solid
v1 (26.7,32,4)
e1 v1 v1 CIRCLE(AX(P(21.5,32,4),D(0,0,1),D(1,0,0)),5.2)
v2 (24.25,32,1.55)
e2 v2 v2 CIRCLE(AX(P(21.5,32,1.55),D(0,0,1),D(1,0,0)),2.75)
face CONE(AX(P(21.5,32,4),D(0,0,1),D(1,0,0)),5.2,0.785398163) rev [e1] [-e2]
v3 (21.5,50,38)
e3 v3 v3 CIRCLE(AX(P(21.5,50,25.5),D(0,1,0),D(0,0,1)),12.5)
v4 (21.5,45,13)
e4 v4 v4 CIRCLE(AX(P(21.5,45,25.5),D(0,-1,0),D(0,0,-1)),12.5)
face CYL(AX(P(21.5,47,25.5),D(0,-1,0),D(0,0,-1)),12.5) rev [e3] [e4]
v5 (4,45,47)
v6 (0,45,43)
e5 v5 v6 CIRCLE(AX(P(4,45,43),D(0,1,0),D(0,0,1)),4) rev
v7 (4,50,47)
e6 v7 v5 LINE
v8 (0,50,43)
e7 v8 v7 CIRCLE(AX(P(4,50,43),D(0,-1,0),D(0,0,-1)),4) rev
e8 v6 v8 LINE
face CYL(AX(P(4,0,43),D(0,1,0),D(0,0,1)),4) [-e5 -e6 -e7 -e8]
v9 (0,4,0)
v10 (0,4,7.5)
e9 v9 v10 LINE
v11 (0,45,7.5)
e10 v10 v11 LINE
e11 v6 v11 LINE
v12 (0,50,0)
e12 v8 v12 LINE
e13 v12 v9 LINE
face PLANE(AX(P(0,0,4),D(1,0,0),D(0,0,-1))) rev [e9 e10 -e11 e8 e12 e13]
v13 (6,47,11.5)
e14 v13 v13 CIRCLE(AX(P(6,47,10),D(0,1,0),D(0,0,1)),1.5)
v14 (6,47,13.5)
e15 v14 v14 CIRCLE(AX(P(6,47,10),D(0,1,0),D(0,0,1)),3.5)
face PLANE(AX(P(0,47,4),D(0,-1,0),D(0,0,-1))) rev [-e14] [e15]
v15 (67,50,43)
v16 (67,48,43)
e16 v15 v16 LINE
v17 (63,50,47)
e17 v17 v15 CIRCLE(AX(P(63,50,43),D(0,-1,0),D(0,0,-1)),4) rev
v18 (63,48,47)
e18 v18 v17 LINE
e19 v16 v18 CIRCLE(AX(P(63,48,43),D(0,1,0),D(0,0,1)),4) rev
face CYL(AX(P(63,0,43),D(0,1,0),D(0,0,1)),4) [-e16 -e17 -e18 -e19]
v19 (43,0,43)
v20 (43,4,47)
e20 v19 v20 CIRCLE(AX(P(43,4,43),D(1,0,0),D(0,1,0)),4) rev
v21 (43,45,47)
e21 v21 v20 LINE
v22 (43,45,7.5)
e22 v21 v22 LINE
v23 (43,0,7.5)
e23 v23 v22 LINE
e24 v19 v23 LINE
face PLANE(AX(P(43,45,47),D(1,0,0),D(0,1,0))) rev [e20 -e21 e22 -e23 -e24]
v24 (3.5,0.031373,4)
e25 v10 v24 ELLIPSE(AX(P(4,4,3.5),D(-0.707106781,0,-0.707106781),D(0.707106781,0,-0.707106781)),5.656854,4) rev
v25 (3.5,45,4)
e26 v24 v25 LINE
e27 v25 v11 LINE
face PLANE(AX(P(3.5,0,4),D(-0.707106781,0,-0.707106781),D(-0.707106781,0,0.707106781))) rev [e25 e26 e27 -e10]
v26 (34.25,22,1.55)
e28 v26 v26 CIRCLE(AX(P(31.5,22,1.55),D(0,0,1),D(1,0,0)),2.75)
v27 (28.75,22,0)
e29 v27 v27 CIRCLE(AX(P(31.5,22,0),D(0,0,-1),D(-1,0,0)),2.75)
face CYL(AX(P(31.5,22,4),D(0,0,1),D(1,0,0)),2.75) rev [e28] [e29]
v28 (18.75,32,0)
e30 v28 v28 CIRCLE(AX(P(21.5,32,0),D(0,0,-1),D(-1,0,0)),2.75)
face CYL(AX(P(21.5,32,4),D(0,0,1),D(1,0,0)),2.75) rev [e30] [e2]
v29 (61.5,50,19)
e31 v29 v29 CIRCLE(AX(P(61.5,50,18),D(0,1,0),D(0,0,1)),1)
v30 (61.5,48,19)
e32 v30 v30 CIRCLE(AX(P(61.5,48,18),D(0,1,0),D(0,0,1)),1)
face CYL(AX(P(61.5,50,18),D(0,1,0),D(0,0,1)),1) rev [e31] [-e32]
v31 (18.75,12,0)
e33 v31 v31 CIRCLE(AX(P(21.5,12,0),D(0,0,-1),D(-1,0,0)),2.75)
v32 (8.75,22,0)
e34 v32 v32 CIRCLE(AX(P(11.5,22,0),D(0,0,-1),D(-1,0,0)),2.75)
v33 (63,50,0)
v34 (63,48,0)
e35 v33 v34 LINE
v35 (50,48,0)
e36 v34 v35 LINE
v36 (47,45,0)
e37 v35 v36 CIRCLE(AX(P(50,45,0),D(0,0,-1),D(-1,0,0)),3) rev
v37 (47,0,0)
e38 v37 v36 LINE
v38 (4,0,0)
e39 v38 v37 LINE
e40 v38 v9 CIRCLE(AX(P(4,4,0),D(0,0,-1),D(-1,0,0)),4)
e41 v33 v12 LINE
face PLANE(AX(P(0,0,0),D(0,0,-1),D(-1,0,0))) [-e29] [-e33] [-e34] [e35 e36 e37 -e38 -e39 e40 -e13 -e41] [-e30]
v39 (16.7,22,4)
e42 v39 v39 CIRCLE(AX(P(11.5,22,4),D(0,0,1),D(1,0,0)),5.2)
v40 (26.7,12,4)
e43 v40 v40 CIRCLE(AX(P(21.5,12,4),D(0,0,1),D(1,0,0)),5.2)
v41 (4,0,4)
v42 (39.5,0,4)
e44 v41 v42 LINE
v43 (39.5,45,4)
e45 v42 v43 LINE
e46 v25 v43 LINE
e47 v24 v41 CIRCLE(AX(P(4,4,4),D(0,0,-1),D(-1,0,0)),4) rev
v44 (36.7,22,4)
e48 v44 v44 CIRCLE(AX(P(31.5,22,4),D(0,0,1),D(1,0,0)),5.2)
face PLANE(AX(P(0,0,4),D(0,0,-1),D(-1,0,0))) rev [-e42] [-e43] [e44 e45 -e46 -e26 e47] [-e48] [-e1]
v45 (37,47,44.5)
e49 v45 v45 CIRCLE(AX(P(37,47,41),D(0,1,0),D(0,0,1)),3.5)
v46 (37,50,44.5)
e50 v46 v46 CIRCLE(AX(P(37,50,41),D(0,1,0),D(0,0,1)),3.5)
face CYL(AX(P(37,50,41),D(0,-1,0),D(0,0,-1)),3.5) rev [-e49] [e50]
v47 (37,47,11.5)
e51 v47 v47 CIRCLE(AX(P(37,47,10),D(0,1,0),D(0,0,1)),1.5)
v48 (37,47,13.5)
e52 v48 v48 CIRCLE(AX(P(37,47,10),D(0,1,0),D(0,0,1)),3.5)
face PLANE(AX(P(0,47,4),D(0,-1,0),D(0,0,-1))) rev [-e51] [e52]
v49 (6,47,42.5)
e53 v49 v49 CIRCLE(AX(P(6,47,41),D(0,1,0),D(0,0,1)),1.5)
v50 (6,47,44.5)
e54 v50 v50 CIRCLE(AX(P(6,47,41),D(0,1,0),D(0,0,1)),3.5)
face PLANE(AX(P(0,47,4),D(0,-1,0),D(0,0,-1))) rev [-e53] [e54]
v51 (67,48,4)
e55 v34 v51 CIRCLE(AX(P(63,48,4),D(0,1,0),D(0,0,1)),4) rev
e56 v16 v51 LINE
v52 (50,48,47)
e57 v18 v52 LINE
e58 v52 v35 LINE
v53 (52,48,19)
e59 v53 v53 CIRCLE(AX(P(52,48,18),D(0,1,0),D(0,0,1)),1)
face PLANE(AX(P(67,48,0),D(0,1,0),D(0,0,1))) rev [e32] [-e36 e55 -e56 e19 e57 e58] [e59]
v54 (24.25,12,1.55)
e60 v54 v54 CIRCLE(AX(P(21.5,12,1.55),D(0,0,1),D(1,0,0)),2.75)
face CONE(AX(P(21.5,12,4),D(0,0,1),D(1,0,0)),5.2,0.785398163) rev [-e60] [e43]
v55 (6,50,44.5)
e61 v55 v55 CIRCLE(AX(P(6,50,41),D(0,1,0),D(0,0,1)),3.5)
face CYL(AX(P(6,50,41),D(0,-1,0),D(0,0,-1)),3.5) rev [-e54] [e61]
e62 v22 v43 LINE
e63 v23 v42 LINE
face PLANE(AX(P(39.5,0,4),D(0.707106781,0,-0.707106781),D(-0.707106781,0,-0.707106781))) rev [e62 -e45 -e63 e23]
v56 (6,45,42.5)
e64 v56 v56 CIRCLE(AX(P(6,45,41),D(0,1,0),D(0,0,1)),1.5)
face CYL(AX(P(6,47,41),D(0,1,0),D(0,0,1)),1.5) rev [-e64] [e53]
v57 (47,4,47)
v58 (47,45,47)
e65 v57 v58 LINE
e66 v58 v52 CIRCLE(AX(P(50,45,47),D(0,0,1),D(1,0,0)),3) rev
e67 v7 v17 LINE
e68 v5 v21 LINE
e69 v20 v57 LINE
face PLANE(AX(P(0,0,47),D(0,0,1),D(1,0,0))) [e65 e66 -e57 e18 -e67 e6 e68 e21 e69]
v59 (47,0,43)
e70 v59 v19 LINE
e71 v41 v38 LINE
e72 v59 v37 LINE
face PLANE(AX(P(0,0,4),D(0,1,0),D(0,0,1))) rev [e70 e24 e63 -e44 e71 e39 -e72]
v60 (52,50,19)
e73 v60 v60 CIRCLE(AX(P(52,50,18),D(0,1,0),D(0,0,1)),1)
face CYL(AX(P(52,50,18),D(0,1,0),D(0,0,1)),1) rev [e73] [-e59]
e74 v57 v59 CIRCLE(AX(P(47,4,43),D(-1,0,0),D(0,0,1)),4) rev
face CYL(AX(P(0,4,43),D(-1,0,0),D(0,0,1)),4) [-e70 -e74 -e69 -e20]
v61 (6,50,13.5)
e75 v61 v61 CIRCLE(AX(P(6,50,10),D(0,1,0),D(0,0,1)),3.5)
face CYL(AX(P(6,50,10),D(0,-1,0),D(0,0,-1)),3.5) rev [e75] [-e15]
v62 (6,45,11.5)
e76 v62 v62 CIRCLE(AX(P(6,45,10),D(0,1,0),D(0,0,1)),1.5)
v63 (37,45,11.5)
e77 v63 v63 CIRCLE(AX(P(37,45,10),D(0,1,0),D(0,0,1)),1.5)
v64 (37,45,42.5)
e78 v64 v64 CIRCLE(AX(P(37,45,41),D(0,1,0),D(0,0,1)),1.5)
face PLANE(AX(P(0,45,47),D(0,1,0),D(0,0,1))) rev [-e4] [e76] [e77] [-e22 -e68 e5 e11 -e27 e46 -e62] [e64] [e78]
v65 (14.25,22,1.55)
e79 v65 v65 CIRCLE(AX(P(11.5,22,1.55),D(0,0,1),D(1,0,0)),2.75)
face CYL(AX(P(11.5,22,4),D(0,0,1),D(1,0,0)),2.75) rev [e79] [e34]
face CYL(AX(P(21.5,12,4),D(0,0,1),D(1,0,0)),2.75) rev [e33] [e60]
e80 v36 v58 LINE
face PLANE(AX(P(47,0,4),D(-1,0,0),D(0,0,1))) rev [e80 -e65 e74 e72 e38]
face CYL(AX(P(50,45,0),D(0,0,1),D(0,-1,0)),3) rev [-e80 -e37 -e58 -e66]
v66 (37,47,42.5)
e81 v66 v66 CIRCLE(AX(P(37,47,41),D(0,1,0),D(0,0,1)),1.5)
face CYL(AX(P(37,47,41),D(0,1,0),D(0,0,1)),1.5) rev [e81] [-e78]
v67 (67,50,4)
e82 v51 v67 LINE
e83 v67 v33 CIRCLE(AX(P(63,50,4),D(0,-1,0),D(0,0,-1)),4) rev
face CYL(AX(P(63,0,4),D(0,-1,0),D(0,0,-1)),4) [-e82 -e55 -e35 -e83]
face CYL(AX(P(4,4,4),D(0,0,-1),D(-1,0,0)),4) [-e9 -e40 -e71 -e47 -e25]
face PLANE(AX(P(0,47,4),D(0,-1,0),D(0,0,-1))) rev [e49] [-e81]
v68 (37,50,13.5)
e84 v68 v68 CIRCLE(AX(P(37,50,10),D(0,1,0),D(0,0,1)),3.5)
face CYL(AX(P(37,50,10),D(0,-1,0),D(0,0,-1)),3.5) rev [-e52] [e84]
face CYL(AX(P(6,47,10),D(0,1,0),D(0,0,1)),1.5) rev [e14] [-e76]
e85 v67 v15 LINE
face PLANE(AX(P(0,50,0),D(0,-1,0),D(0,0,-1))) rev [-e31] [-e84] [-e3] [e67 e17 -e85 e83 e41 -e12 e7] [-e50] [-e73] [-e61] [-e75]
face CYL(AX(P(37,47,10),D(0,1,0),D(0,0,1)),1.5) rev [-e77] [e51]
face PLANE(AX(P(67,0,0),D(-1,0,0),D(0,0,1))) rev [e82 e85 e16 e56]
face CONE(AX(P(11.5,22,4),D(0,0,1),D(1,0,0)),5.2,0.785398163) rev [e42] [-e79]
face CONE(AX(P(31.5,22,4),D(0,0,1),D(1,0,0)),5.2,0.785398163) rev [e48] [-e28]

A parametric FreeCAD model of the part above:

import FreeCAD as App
import Part
import Sketcher
Q = App.Units.Quantity


def edges_at(feature, points):
    """Names of the edges that pass closest to the given points."""
    edges = feature.Shape.Edges
    near = lambda p: min(range(len(edges)), key=lambda i: edges[i].distToShape(Part.Vertex(*p))[0])
    return sorted({f"Edge{near(p) + 1}" for p in points})

doc = App.newDocument("Part")
body = doc.addObject("PartDesign::Body", "Body")

sketch1 = doc.addObject("Sketcher::SketchObject", "Sketch")
body.addObject(sketch1)
sketch1.AttachmentSupport = (doc.XY_Plane, [""])
sketch1.MapMode = "FlatFace"
sketch1.addGeometry([
    Part.LineSegment(App.Vector(0, 47, 0), App.Vector(0, 0, 0)),
    Part.LineSegment(App.Vector(0, 0, 0), App.Vector(47, 0, 0)),
    Part.LineSegment(App.Vector(47, 0, 0), App.Vector(47, 47, 0)),
    Part.LineSegment(App.Vector(47, 47, 0), App.Vector(0, 47, 0)),
], False)
sketch1.addConstraint([
    Sketcher.Constraint("Coincident", 0, 2, 1, 1),
    Sketcher.Constraint("Coincident", 1, 2, 2, 1),
    Sketcher.Constraint("Coincident", 2, 2, 3, 1),
    Sketcher.Constraint("Coincident", 3, 2, 0, 1),
    Sketcher.Constraint("Vertical", 0),
    Sketcher.Constraint("Horizontal", 1),
    Sketcher.Constraint("Vertical", 2),
    Sketcher.Constraint("Horizontal", 3),
    Sketcher.Constraint("Coincident", 0, 2, -1, 1),
    Sketcher.Constraint("Equal", 3, 0),
    Sketcher.Constraint("DistanceX", 1, 1, 1, 2, Q("47 mm")),
])
pad1 = doc.addObject("PartDesign::Pad", "Pad")
body.addObject(pad1)
pad1.Profile = sketch1
pad1.Length = 4

sketch2 = doc.addObject("Sketcher::SketchObject", "Sketch001")
body.addObject(sketch2)
sketch2.AttachmentSupport = (doc.XY_Plane, [""])
sketch2.MapMode = "FlatFace"
sketch2.AttachmentOffset = App.Placement(App.Vector(0, 0, 4), App.Rotation())
sketch2.addGeometry([
    Part.LineSegment(App.Vector(0, 47, 0), App.Vector(0, 45, 0)),
    Part.LineSegment(App.Vector(0, 45, 0), App.Vector(47, 45, 0)),
    Part.LineSegment(App.Vector(47, 45, 0), App.Vector(47, 47, 0)),
    Part.LineSegment(App.Vector(47, 47, 0), App.Vector(0, 47, 0)),
], False)
sketch2.addConstraint([
    Sketcher.Constraint("Coincident", 0, 2, 1, 1),
    Sketcher.Constraint("Coincident", 1, 2, 2, 1),
    Sketcher.Constraint("Coincident", 2, 2, 3, 1),
    Sketcher.Constraint("Coincident", 3, 2, 0, 1),
    Sketcher.Constraint("Vertical", 0),
    Sketcher.Constraint("Horizontal", 1),
    Sketcher.Constraint("Vertical", 2),
    Sketcher.Constraint("Horizontal", 3),
    Sketcher.Constraint("PointOnObject", 0, 2, -2),
    Sketcher.Constraint("DistanceX", 1, 1, 1, 2, Q("47 mm")),
    Sketcher.Constraint("DistanceY", 0, 2, 0, 1, Q("2 mm")),
    Sketcher.Constraint("DistanceY", -1, 1, 0, 2, Q("45 mm")),
])
pad2 = doc.addObject("PartDesign::Pad", "Pad001")
body.addObject(pad2)
pad2.Profile = sketch2
pad2.Length = 43

sketch3 = doc.addObject("Sketcher::SketchObject", "Sketch002")
body.addObject(sketch3)
sketch3.AttachmentSupport = (doc.XY_Plane, [""])
sketch3.MapMode = "FlatFace"
sketch3.AttachmentOffset = App.Placement(App.Vector(0, 0, 4), App.Rotation())
sketch3.addGeometry([
    Part.LineSegment(App.Vector(43, 45, 0), App.Vector(43, 0, 0)),
    Part.LineSegment(App.Vector(43, 0, 0), App.Vector(47, 0, 0)),
    Part.LineSegment(App.Vector(47, 0, 0), App.Vector(47, 45, 0)),
    Part.LineSegment(App.Vector(47, 45, 0), App.Vector(43, 45, 0)),
], False)
sketch3.addConstraint([
    Sketcher.Constraint("Coincident", 0, 2, 1, 1),
    Sketcher.Constraint("Coincident", 1, 2, 2, 1),
    Sketcher.Constraint("Coincident", 2, 2, 3, 1),
    Sketcher.Constraint("Coincident", 3, 2, 0, 1),
    Sketcher.Constraint("Vertical", 0),
    Sketcher.Constraint("Horizontal", 1),
    Sketcher.Constraint("Vertical", 2),
    Sketcher.Constraint("Horizontal", 3),
    Sketcher.Constraint("PointOnObject", 0, 2, -1),
    Sketcher.Constraint("DistanceX", 1, 1, 1, 2, Q("4 mm")),
    Sketcher.Constraint("DistanceY", 0, 2, 0, 1, Q("45 mm")),
    Sketcher.Constraint("DistanceX", -1, 1, 0, 2, Q("43 mm")),
])
pad3 = doc.addObject("PartDesign::Pad", "Pad002")
body.addObject(pad3)
pad3.Profile = sketch3
pad3.Length = 43

sketch4 = doc.addObject("Sketcher::SketchObject", "Sketch003")
body.addObject(sketch4)
sketch4.AttachmentSupport = (doc.XZ_Plane, [""])
sketch4.MapMode = "FlatFace"
sketch4.AttachmentOffset = App.Placement(App.Vector(0, 0, -45), App.Rotation())
sketch4.addGeometry(Part.Circle(App.Vector(22, 26, 0), App.Vector(0, 0, 1), 12), False)
sketch4.addConstraint([
    Sketcher.Constraint("Diameter", 0, Q("25 mm")),
    Sketcher.Constraint("DistanceX", -1, 1, 0, 3, Q("21.5 mm")),
    Sketcher.Constraint("DistanceY", -1, 1, 0, 3, Q("25.5 mm")),
])
pocket1 = doc.addObject("PartDesign::Pocket", "Pocket")
body.addObject(pocket1)
pocket1.Profile = sketch4
pocket1.Type = "ThroughAll"

sketch5 = doc.addObject("Sketcher::SketchObject", "Sketch004")
body.addObject(sketch5)
sketch5.AttachmentSupport = (doc.XZ_Plane, [""])
sketch5.MapMode = "FlatFace"
sketch5.AttachmentOffset = App.Placement(App.Vector(0, 0, -47), App.Rotation())
sketch5.addGeometry([
    Part.Circle(App.Vector(6, 10, 0), App.Vector(0, 0, 1), 1.5),
    Part.Circle(App.Vector(37, 10, 0), App.Vector(0, 0, 1), 1.5),
    Part.Circle(App.Vector(37, 41, 0), App.Vector(0, 0, 1), 1.5),
    Part.Circle(App.Vector(6, 41, 0), App.Vector(0, 0, 1), 1.5),
], False)
sketch5.addConstraint([
    Sketcher.Constraint("Equal", 0, 1),
    Sketcher.Constraint("Equal", 1, 2),
    Sketcher.Constraint("Equal", 2, 3),
    Sketcher.Constraint("Horizontal", 0, 3, 1, 3),
    Sketcher.Constraint("Horizontal", 2, 3, 3, 3),
    Sketcher.Constraint("Vertical", 1, 3, 2, 3),
    Sketcher.Constraint("Vertical", 0, 3, 3, 3),
    Sketcher.Constraint("Diameter", 0, Q("3 mm")),
    Sketcher.Constraint("DistanceX", -1, 1, 0, 3, Q("6 mm")),
    Sketcher.Constraint("DistanceY", -1, 1, 0, 3, Q("10 mm")),
    Sketcher.Constraint("DistanceX", -1, 1, 1, 3, Q("37 mm")),
    Sketcher.Constraint("DistanceY", -1, 1, 2, 3, Q("41 mm")),
])
doc.recompute()
hole = doc.addObject("PartDesign::Hole", "Hole")
body.addObject(hole)
hole.Profile = sketch5
hole.ThreadType = "None"
hole.Diameter = 3
hole.DepthType = "ThroughAll"
hole.Reversed = True

sketch6 = doc.addObject("Sketcher::SketchObject", "Sketch005")
body.addObject(sketch6)
sketch6.AttachmentSupport = (doc.YZ_Plane, [""])
sketch6.MapMode = "FlatFace"
sketch6.AttachmentOffset = App.Placement(App.Vector(0, 0, 11.5), App.Rotation())
sketch6.addGeometry([
    Part.LineSegment(App.Vector(22, 0, 0), App.Vector(22, 4, 0)),
    Part.LineSegment(App.Vector(22, 4, 0), App.Vector(16.8, 4, 0)),
    Part.LineSegment(App.Vector(16.8, 4, 0), App.Vector(19.2, 1.6, 0)),
    Part.LineSegment(App.Vector(19.2, 1.6, 0), App.Vector(19.2, 0, 0)),
    Part.LineSegment(App.Vector(19.2, 0, 0), App.Vector(22, 0, 0)),
], False)
sketch6.addGeometry(Part.LineSegment(App.Vector(22, 4, 0), App.Vector(22, 0, 0)), True)
sketch6.addConstraint([
    Sketcher.Constraint("Coincident", 0, 2, 1, 1),
    Sketcher.Constraint("Coincident", 1, 2, 2, 1),
    Sketcher.Constraint("Coincident", 2, 2, 3, 1),
    Sketcher.Constraint("Coincident", 3, 2, 4, 1),
    Sketcher.Constraint("Coincident", 4, 2, 0, 1),
    Sketcher.Constraint("Vertical", 0),
    Sketcher.Constraint("Horizontal", 1),
    Sketcher.Constraint("Vertical", 3),
    Sketcher.Constraint("Horizontal", 4),
    Sketcher.Constraint("Vertical", 5),
    Sketcher.Constraint("Coincident", 5, 1, 0, 2),
    Sketcher.Constraint("PointOnObject", 3, 2, -1),
    Sketcher.Constraint("PointOnObject", 5, 2, -1),
    Sketcher.Constraint("DistanceY", 0, 1, 0, 2, Q("4 mm")),
    Sketcher.Constraint("Angle", 2, Q("-45 deg")),
    Sketcher.Constraint("DistanceX", 1, 2, 1, 1, Q("5.2 mm")),
    Sketcher.Constraint("DistanceX", -1, 1, 0, 2, Q("22 mm")),
    Sketcher.Constraint("DistanceX", 4, 1, 4, 2, Q("2.75 mm")),
])
groove = doc.addObject("PartDesign::Groove", "Groove")
body.addObject(groove)
groove.Profile = sketch6
groove.ReferenceAxis = (sketch6, ["Axis0"])
groove.Angle = 360
doc.recompute()

datumline = doc.addObject("PartDesign::Line", "DatumLine")
body.addObject(datumline)
datumline.Placement = App.Placement(App.Vector(0, 0, 0), App.Rotation(App.Vector(0, 0, 1), App.Vector(0.707106781, 0.707106781, 0)))
linearpattern = doc.addObject("PartDesign::LinearPattern", "LinearPattern")
body.addObject(linearpattern)
linearpattern.Originals = [groove]
linearpattern.Direction = (datumline, [""])
linearpattern.Mode = "offset"
linearpattern.Offset = 14.142136
linearpattern.Occurrences = 2
body.Tip = linearpattern
doc.recompute()

linearpattern2 = doc.addObject("PartDesign::LinearPattern", "LinearPattern001")
body.addObject(linearpattern2)
linearpattern2.Originals = [groove]
linearpattern2.Direction = (doc.X_Axis, [""])
linearpattern2.Mode = "offset"
linearpattern2.Offset = 20
linearpattern2.Occurrences = 2
body.Tip = linearpattern2
doc.recompute()

datumline2 = doc.addObject("PartDesign::Line", "DatumLine001")
body.addObject(datumline2)
datumline2.Placement = App.Placement(App.Vector(0, 0, 0), App.Rotation(App.Vector(0, 0, 1), App.Vector(0.707106781, -0.707106781, 0)))
linearpattern3 = doc.addObject("PartDesign::LinearPattern", "LinearPattern002")
body.addObject(linearpattern3)
linearpattern3.Originals = [groove]
linearpattern3.Direction = (datumline2, [""])
linearpattern3.Mode = "offset"
linearpattern3.Offset = 14.142136
linearpattern3.Occurrences = 2
body.Tip = linearpattern3

sketch7 = doc.addObject("Sketcher::SketchObject", "Sketch006")
body.addObject(sketch7)
sketch7.AttachmentSupport = (doc.XZ_Plane, [""])
sketch7.MapMode = "FlatFace"
sketch7.AttachmentOffset = App.Placement(App.Vector(0, 0, -45), App.Rotation())
sketch7.addGeometry([
    Part.LineSegment(App.Vector(39.5, 4, 0), App.Vector(43, 4, 0)),
    Part.LineSegment(App.Vector(43, 4, 0), App.Vector(43, 7.5, 0)),
    Part.LineSegment(App.Vector(43, 7.5, 0), App.Vector(39.5, 4, 0)),
], False)
sketch7.addConstraint([
    Sketcher.Constraint("Coincident", 0, 2, 1, 1),
    Sketcher.Constraint("Coincident", 1, 2, 2, 1),
    Sketcher.Constraint("Coincident", 2, 2, 0, 1),
    Sketcher.Constraint("Horizontal", 0),
    Sketcher.Constraint("Vertical", 1),
    Sketcher.Constraint("Equal", 0, 1),
    Sketcher.Constraint("DistanceX", 0, 1, 0, 2, Q("3.5 mm")),
    Sketcher.Constraint("DistanceX", -1, 1, 0, 2, Q("43 mm")),
    Sketcher.Constraint("DistanceY", -1, 1, 0, 2, Q("4 mm")),
])
pad4 = doc.addObject("PartDesign::Pad", "Pad003")
body.addObject(pad4)
pad4.Profile = sketch7
pad4.Length = 45

sketch8 = doc.addObject("Sketcher::SketchObject", "Sketch007")
body.addObject(sketch8)
sketch8.AttachmentSupport = (doc.XZ_Plane, [""])
sketch8.MapMode = "FlatFace"
sketch8.AttachmentOffset = App.Placement(App.Vector(0, 0, -45), App.Rotation())
sketch8.addGeometry([
    Part.LineSegment(App.Vector(0, 4, 0), App.Vector(3.5, 4, 0)),
    Part.LineSegment(App.Vector(3.5, 4, 0), App.Vector(0, 7.5, 0)),
    Part.LineSegment(App.Vector(0, 7.5, 0), App.Vector(0, 4, 0)),
], False)
sketch8.addConstraint([
    Sketcher.Constraint("Coincident", 0, 2, 1, 1),
    Sketcher.Constraint("Coincident", 1, 2, 2, 1),
    Sketcher.Constraint("Coincident", 2, 2, 0, 1),
    Sketcher.Constraint("Horizontal", 0),
    Sketcher.Constraint("Vertical", 2),
    Sketcher.Constraint("PointOnObject", 1, 2, -2),
    Sketcher.Constraint("Equal", 0, 2),
    Sketcher.Constraint("DistanceX", 0, 1, 0, 2, Q("3.5 mm")),
    Sketcher.Constraint("DistanceY", -1, 1, 0, 2, Q("4 mm")),
])
pad5 = doc.addObject("PartDesign::Pad", "Pad004")
body.addObject(pad5)
pad5.Profile = sketch8
pad5.Length = 45

sketch9 = doc.addObject("Sketcher::SketchObject", "Sketch008")
body.addObject(sketch9)
sketch9.AttachmentSupport = (doc.XZ_Plane, [""])
sketch9.MapMode = "FlatFace"
sketch9.AttachmentOffset = App.Placement(App.Vector(0, 0, -47), App.Rotation())
sketch9.addGeometry([
    Part.LineSegment(App.Vector(-20, 0, 0), App.Vector(-20, 47, 0)),
    Part.LineSegment(App.Vector(-20, 47, 0), App.Vector(47, 47, 0)),
    Part.LineSegment(App.Vector(47, 47, 0), App.Vector(47, 0, 0)),
    Part.LineSegment(App.Vector(47, 0, 0), App.Vector(-20, 0, 0)),
    Part.Circle(App.Vector(6, 41, 0), App.Vector(0, 0, 1), 3.5),
    Part.Circle(App.Vector(37, 41, 0), App.Vector(0, 0, 1), 3.5),
    Part.Circle(App.Vector(6, 10, 0), App.Vector(0, 0, 1), 3.5),
    Part.Circle(App.Vector(21.5, 25.5, 0), App.Vector(0, 0, 1), 12.5),
    Part.Circle(App.Vector(37, 10, 0), App.Vector(0, 0, 1), 3.5),
], False)
sketch9.addConstraint([
    Sketcher.Constraint("Coincident", 0, 2, 1, 1),
    Sketcher.Constraint("Coincident", 1, 2, 2, 1),
    Sketcher.Constraint("Coincident", 2, 2, 3, 1),
    Sketcher.Constraint("Coincident", 3, 2, 0, 1),
    Sketcher.Constraint("Vertical", 0),
    Sketcher.Constraint("Horizontal", 1),
    Sketcher.Constraint("Vertical", 2),
    Sketcher.Constraint("Horizontal", 3),
    Sketcher.Constraint("Equal", 4, 5),
    Sketcher.Constraint("Equal", 5, 6),
    Sketcher.Constraint("Equal", 6, 8),
    Sketcher.Constraint("PointOnObject", 2, 2, -1),
    Sketcher.Constraint("Horizontal", 4, 3, 5, 3),
    Sketcher.Constraint("Horizontal", 6, 3, 8, 3),
    Sketcher.Constraint("Vertical", 4, 3, 6, 3),
    Sketcher.Constraint("Vertical", 5, 3, 8, 3),
    Sketcher.Constraint("Diameter", 4, Q("7 mm")),
    Sketcher.Constraint("Diameter", 7, Q("25 mm")),
    Sketcher.Constraint("DistanceX", 1, 1, 1, 2, Q("67 mm")),
    Sketcher.Constraint("DistanceY", 0, 1, 0, 2, Q("47 mm")),
    Sketcher.Constraint("DistanceX", -1, 1, 4, 3, Q("6 mm")),
    Sketcher.Constraint("DistanceY", -1, 1, 4, 3, Q("41 mm")),
    Sketcher.Constraint("DistanceX", -1, 1, 5, 3, Q("37 mm")),
    Sketcher.Constraint("DistanceY", -1, 1, 6, 3, Q("10 mm")),
    Sketcher.Constraint("DistanceX", 0, 2, -1, 1, Q("20 mm")),
    Sketcher.Constraint("DistanceX", -1, 1, 7, 3, Q("21.5 mm")),
    Sketcher.Constraint("DistanceY", -1, 1, 7, 3, Q("25.5 mm")),
])
pad6 = doc.addObject("PartDesign::Pad", "Pad005")
body.addObject(pad6)
pad6.Profile = sketch9
pad6.Length = 3
pad6.Reversed = True

sketch10 = doc.addObject("Sketcher::SketchObject", "Sketch009")
body.addObject(sketch10)
sketch10.AttachmentSupport = (doc.XZ_Plane, [""])
sketch10.MapMode = "FlatFace"
sketch10.AttachmentOffset = App.Placement(App.Vector(0, 0, -50), App.Rotation())
sketch10.addGeometry([
    Part.Circle(App.Vector(-5, 18, 0), App.Vector(0, 0, 1), 1),
    Part.Circle(App.Vector(-14.5, 18, 0), App.Vector(0, 0, 1), 1),
], False)
sketch10.addConstraint([
    Sketcher.Constraint("Equal", 0, 1),
    Sketcher.Constraint("Horizontal", 0, 3, 1, 3),
    Sketcher.Constraint("Diameter", 0, Q("2 mm")),
    Sketcher.Constraint("DistanceX", 0, 3, -1, 1, Q("5 mm")),
    Sketcher.Constraint("DistanceY", -1, 1, 0, 3, Q("18 mm")),
    Sketcher.Constraint("DistanceX", 1, 3, -1, 1, Q("14.5 mm")),
])
doc.recompute()
hole2 = doc.addObject("PartDesign::Hole", "Hole001")
body.addObject(hole2)
hole2.Profile = sketch10
hole2.ThreadType = "None"
hole2.Diameter = 2
hole2.DepthType = "ThroughAll"
hole2.Reversed = True

sketch11 = doc.addObject("Sketcher::SketchObject", "Sketch010")
body.addObject(sketch11)
sketch11.AttachmentSupport = (doc.YZ_Plane, [""])
sketch11.MapMode = "FlatFace"
sketch11.AttachmentOffset = App.Placement(App.Vector(0, 0, -20), App.Rotation())
sketch11.addGeometry([
    Part.LineSegment(App.Vector(48, 0, 0), App.Vector(47, 0, 0)),
    Part.LineSegment(App.Vector(47, 0, 0), App.Vector(47, 47, 0)),
    Part.LineSegment(App.Vector(47, 47, 0), App.Vector(48, 47, 0)),
    Part.LineSegment(App.Vector(48, 47, 0), App.Vector(48, 0, 0)),
], False)
sketch11.addConstraint([
    Sketcher.Constraint("Coincident", 0, 2, 1, 1),
    Sketcher.Constraint("Coincident", 1, 2, 2, 1),
    Sketcher.Constraint("Coincident", 2, 2, 3, 1),
    Sketcher.Constraint("Coincident", 3, 2, 0, 1),
    Sketcher.Constraint("Horizontal", 0),
    Sketcher.Constraint("Vertical", 1),
    Sketcher.Constraint("Horizontal", 2),
    Sketcher.Constraint("Vertical", 3),
    Sketcher.Constraint("PointOnObject", 0, 2, -1),
    Sketcher.Constraint("DistanceX", 0, 2, 0, 1, Q("1 mm")),
    Sketcher.Constraint("DistanceY", 1, 1, 1, 2, Q("47 mm")),
    Sketcher.Constraint("DistanceX", -1, 1, 0, 2, Q("47 mm")),
])
pocket2 = doc.addObject("PartDesign::Pocket", "Pocket001")
body.addObject(pocket2)
pocket2.Profile = sketch11
pocket2.Length = 20
pocket2.Reversed = True
doc.recompute()

fillet = doc.addObject("PartDesign::Fillet", "Fillet")
body.addObject(fillet)
fillet.Base = (pocket2, edges_at(pocket2, [(0, 48, 23.5)]))
fillet.Radius = 2.5
doc.recompute()

fillet2 = doc.addObject("PartDesign::Fillet", "Fillet001")
body.addObject(fillet2)
fillet2.Base = (fillet, edges_at(fillet, [
    (-20, 49, 47),
    (-20, 49, 0),
    (0, 0, 3.75),
    (45, 0, 47),
]))
fillet2.Radius = 4

sketch12 = doc.addObject("Sketcher::SketchObject", "Sketch011")
body.addObject(sketch12)
sketch12.AttachmentSupport = (doc.YZ_Plane, [""])
sketch12.MapMode = "FlatFace"
sketch12.AttachmentOffset = App.Placement(App.Vector(0, 0, 47), App.Rotation())
sketch12.addGeometry([
    Part.LineSegment(App.Vector(50, 47, 0), App.Vector(48, 47, 0)),
    Part.LineSegment(App.Vector(48, 47, 0), App.Vector(48, 0, 0)),
    Part.LineSegment(App.Vector(48, 0, 0), App.Vector(50, 0, 0)),
    Part.LineSegment(App.Vector(50, 0, 0), App.Vector(50, 47, 0)),
], False)
sketch12.addConstraint([
    Sketcher.Constraint("Coincident", 0, 2, 1, 1),
    Sketcher.Constraint("Coincident", 1, 2, 2, 1),
    Sketcher.Constraint("Coincident", 2, 2, 3, 1),
    Sketcher.Constraint("Coincident", 3, 2, 0, 1),
    Sketcher.Constraint("Horizontal", 0),
    Sketcher.Constraint("Vertical", 1),
    Sketcher.Constraint("Horizontal", 2),
    Sketcher.Constraint("Vertical", 3),
    Sketcher.Constraint("PointOnObject", 1, 2, -1),
    Sketcher.Constraint("DistanceX", 0, 2, 0, 1, Q("2 mm")),
    Sketcher.Constraint("DistanceY", 1, 2, 1, 1, Q("47 mm")),
    Sketcher.Constraint("DistanceX", -1, 1, 0, 2, Q("48 mm")),
])
pad7 = doc.addObject("PartDesign::Pad", "Pad006")
body.addObject(pad7)
pad7.Profile = sketch12
pad7.Length = 20
doc.recompute()

fillet3 = doc.addObject("PartDesign::Fillet", "Fillet002")
body.addObject(fillet3)
fillet3.Base = (pad7, edges_at(pad7, [(67, 49, 0), (67, 49, 47)]))
fillet3.Radius = 4
doc.recompute()

fillet4 = doc.addObject("PartDesign::Fillet", "Fillet003")
body.addObject(fillet4)
fillet4.Base = (fillet3, edges_at(fillet3, [(47, 48, 23.5)]))
fillet4.Radius = 3

sketch13 = doc.addObject("Sketcher::SketchObject", "Sketch012")
body.addObject(sketch13)
sketch13.AttachmentSupport = (doc.XZ_Plane, [""])
sketch13.MapMode = "FlatFace"
sketch13.AttachmentOffset = App.Placement(App.Vector(0, 0, -50), App.Rotation())
sketch13.addGeometry([
    Part.Circle(App.Vector(61.5, 18, 0), App.Vector(0, 0, 1), 1),
    Part.Circle(App.Vector(52, 18, 0), App.Vector(0, 0, 1), 1),
], False)
sketch13.addConstraint([
    Sketcher.Constraint("Equal", 0, 1),
    Sketcher.Constraint("Horizontal", 0, 3, 1, 3),
    Sketcher.Constraint("Diameter", 0, Q("2 mm")),
    Sketcher.Constraint("DistanceY", -1, 1, 0, 3, Q("18 mm")),
    Sketcher.Constraint("DistanceX", -1, 1, 1, 3, Q("52 mm")),
    Sketcher.Constraint("DistanceX", -1, 1, 0, 3, Q("61.5 mm")),
])
doc.recompute()
hole3 = doc.addObject("PartDesign::Hole", "Hole002")
body.addObject(hole3)
hole3.Profile = sketch13
hole3.ThreadType = "None"
hole3.Diameter = 2
hole3.DepthType = "ThroughAll"
hole3.Reversed = True

sketch14 = doc.addObject("Sketcher::SketchObject", "Sketch013")
body.addObject(sketch14)
sketch14.AttachmentSupport = (doc.XZ_Plane, [""])
sketch14.MapMode = "FlatFace"
sketch14.AttachmentOffset = App.Placement(App.Vector(0, 0, -50), App.Rotation())
sketch14.addGeometry([
    Part.LineSegment(App.Vector(-20, 0, 0), App.Vector(-20, 47, 0)),
    Part.LineSegment(App.Vector(-20, 47, 0), App.Vector(0, 47, 0)),
    Part.LineSegment(App.Vector(0, 47, 0), App.Vector(0, 0, 0)),
    Part.LineSegment(App.Vector(0, 0, 0), App.Vector(-20, 0, 0)),
], False)
sketch14.addConstraint([
    Sketcher.Constraint("Coincident", 0, 2, 1, 1),
    Sketcher.Constraint("Coincident", 1, 2, 2, 1),
    Sketcher.Constraint("Coincident", 2, 2, 3, 1),
    Sketcher.Constraint("Coincident", 3, 2, 0, 1),
    Sketcher.Constraint("Vertical", 0),
    Sketcher.Constraint("Horizontal", 1),
    Sketcher.Constraint("Vertical", 2),
    Sketcher.Constraint("Horizontal", 3),
    Sketcher.Constraint("Coincident", 2, 2, -1, 1),
    Sketcher.Constraint("DistanceX", 1, 1, 1, 2, Q("20 mm")),
    Sketcher.Constraint("DistanceY", 0, 1, 0, 2, Q("47 mm")),
])
pocket3 = doc.addObject("PartDesign::Pocket", "Pocket002")
body.addObject(pocket3)
pocket3.Profile = sketch14
pocket3.Length = 20
pocket3.Reversed = True
doc.recompute()

fillet5 = doc.addObject("PartDesign::Fillet", "Fillet004")
body.addObject(fillet5)
fillet5.Base = (pocket3, edges_at(pocket3, [(0, 47.5, 47)]))
fillet5.Radius = 4

doc.recompute()
